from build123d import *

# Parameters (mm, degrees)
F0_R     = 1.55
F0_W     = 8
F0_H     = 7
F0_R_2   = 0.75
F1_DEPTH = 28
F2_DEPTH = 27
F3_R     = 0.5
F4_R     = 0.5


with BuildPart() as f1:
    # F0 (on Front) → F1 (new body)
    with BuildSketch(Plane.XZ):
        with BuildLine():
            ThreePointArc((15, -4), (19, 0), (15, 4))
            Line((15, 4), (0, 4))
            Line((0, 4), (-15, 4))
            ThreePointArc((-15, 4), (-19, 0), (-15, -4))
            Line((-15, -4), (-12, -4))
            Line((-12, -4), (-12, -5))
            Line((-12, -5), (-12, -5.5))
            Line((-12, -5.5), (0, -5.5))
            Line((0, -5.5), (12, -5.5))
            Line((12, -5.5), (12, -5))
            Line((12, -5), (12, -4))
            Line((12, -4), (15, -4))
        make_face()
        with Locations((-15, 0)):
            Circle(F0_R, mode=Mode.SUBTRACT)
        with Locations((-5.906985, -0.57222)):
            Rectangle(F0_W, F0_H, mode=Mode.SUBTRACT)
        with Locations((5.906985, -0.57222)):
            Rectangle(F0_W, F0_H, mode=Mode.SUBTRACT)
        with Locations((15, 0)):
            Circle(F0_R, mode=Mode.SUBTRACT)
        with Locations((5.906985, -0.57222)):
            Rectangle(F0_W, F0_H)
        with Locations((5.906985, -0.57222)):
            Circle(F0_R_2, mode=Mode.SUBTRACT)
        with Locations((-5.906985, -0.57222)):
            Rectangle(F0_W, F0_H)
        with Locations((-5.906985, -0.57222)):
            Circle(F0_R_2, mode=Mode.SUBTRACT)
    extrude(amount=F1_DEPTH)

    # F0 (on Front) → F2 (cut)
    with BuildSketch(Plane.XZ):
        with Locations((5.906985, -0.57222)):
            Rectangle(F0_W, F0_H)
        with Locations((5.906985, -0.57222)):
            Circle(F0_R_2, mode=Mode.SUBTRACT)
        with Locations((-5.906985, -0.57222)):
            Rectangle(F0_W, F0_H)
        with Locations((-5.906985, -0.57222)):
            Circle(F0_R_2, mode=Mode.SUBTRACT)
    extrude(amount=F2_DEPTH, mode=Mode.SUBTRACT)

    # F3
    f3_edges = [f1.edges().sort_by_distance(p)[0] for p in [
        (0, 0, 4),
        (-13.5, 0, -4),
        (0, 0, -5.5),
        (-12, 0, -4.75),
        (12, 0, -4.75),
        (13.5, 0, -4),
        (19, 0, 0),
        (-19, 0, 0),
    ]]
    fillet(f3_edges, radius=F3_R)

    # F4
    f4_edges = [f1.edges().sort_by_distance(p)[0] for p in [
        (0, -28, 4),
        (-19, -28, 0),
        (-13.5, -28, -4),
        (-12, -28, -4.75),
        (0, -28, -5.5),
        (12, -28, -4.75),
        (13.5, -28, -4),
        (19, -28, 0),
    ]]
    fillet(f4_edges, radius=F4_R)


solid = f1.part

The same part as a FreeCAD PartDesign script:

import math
import FreeCAD as App
import Part
import Sketcher
from FreeCAD import Vector
Q = App.Units.Quantity


def edges_at(feature, points):
    """Names of the edges that pass closest to the given points."""
    edges = feature.Shape.Edges
    near = lambda p: min(range(len(edges)), key=lambda i: edges[i].distToShape(Part.Vertex(*p))[0])
    return sorted({f"Edge{near(p) + 1}" for p in points})

doc = App.newDocument("Part")
body = doc.addObject("PartDesign::Body", "Body")

sketch1 = doc.addObject("Sketcher::SketchObject", "Sketch")
body.addObject(sketch1)
sketch1.AttachmentSupport = (doc.XZ_Plane, [""])
sketch1.MapMode = "FlatFace"
sketch1.addGeometry(Part.ArcOfCircle(Part.Circle(Vector(15, 0, 0), Vector(0, 0, 1), 4), math.radians(-90), math.radians(90)), False)
sketch1.addGeometry(Part.LineSegment(Vector(15, 4, 0), Vector(-15, 4, 0)), False)
sketch1.addGeometry(Part.ArcOfCircle(Part.Circle(Vector(-15, 0, 0), Vector(0, 0, 1), 4), math.radians(90), math.radians(270)), False)
sketch1.addGeometry(Part.LineSegment(Vector(-15, -4, 0), Vector(-12, -4, 0)), False)
sketch1.addGeometry(Part.LineSegment(Vector(-12, -4, 0), Vector(-12, -5.5, 0)), False)
sketch1.addGeometry(Part.LineSegment(Vector(-12, -5.5, 0), Vector(12, -5.5, 0)), False)
sketch1.addGeometry(Part.LineSegment(Vector(12, -5.5, 0), Vector(12, -4, 0)), False)
sketch1.addGeometry(Part.LineSegment(Vector(12, -4, 0), Vector(15, -4, 0)), False)
sketch1.addGeometry(Part.Circle(Vector(-15, 0, 0), Vector(0, 0, 1), 1.6), False)
sketch1.addGeometry(Part.Circle(Vector(-5.9, -0.6, 0), Vector(0, 0, 1), 0.8), False)
sketch1.addGeometry(Part.Circle(Vector(5.9, -0.6, 0), Vector(0, 0, 1), 0.8), False)
sketch1.addGeometry(Part.Circle(Vector(15, 0, 0), Vector(0, 0, 1), 1.6), False)
sketch1.addConstraint(Sketcher.Constraint("Tangent", 0, 2, 1, 1))
sketch1.addConstraint(Sketcher.Constraint("Tangent", 1, 2, 2, 1))
sketch1.addConstraint(Sketcher.Constraint("Tangent", 2, 2, 3, 1))
sketch1.addConstraint(Sketcher.Constraint("Coincident", 3, 2, 4, 1))
sketch1.addConstraint(Sketcher.Constraint("Coincident", 4, 2, 5, 1))
sketch1.addConstraint(Sketcher.Constraint("Coincident", 5, 2, 6, 1))
sketch1.addConstraint(Sketcher.Constraint("Coincident", 6, 2, 7, 1))
sketch1.addConstraint(Sketcher.Constraint("Tangent", 7, 2, 0, 1))
sketch1.addConstraint(Sketcher.Constraint("Horizontal", 1))
sketch1.addConstraint(Sketcher.Constraint("Horizontal", 3))
sketch1.addConstraint(Sketcher.Constraint("Vertical", 4))
sketch1.addConstraint(Sketcher.Constraint("Horizontal", 5))
sketch1.addConstraint(Sketcher.Constraint("Vertical", 6))
sketch1.addConstraint(Sketcher.Constraint("Horizontal", 7))
sketch1.addConstraint(Sketcher.Constraint("Coincident", 8, 3, 2, 3))
sketch1.addConstraint(Sketcher.Constraint("Coincident", 11, 3, 0, 3))
sketch1.addConstraint(Sketcher.Constraint("Equal", 0, 2))
sketch1.addConstraint(Sketcher.Constraint("Equal", 9, 10))
sketch1.addConstraint(Sketcher.Constraint("Equal", 8, 11))
sketch1.addConstraint(Sketcher.Constraint("Symmetric", 0, 3, 2, 3, -1, 1))
sketch1.addConstraint(Sketcher.Constraint("Symmetric", 9, 3, 10, 3, -2))
sketch1.addConstraint(Sketcher.Constraint("Equal", 3, 7))
sketch1.addConstraint(Sketcher.Constraint("Radius", 0, Q("4 mm")))
sketch1.addConstraint(Sketcher.Constraint("Diameter", 8, Q("3.1 mm")))
sketch1.addConstraint(Sketcher.Constraint("Diameter", 9, Q("1.5 mm")))
sketch1.addConstraint(Sketcher.Constraint("DistanceX", 1, 2, 1, 1, Q("30 mm")))
sketch1.addConstraint(Sketcher.Constraint("DistanceX", 3, 1, 3, 2, Q("3 mm")))
sketch1.addConstraint(Sketcher.Constraint("DistanceY", 4, 2, 4, 1, Q("1.5 mm")))
sketch1.addConstraint(Sketcher.Constraint("DistanceY", 9, 3, -1, 1, Q("0.57222 mm")))
sketch1.addConstraint(Sketcher.Constraint("DistanceX", 9, 3, 10, 3, Q("11.81397 mm")))
pad1 = doc.addObject("PartDesign::Pad", "Pad")
body.addObject(pad1)
pad1.Profile = sketch1
pad1.Length = 28

sketch2 = doc.addObject("Sketcher::SketchObject", "Sketch001")
body.addObject(sketch2)
sketch2.AttachmentSupport = (doc.XZ_Plane, [""])
sketch2.MapMode = "FlatFace"
sketch2.addGeometry(Part.LineSegment(Vector(1.9, 2.9, 0), Vector(1.9, -4.1, 0)), False)
sketch2.addGeometry(Part.LineSegment(Vector(1.9, -4.1, 0), Vector(9.9, -4.1, 0)), False)
sketch2.addGeometry(Part.LineSegment(Vector(9.9, -4.1, 0), Vector(9.9, 2.9, 0)), False)
sketch2.addGeometry(Part.LineSegment(Vector(9.9, 2.9, 0), Vector(1.9, 2.9, 0)), False)
sketch2.addGeometry(Part.Circle(Vector(5.9, -0.6, 0), Vector(0, 0, 1), 0.8), False)
sketch2.addGeometry(Part.LineSegment(Vector(-9.9, 2.9, 0), Vector(-9.9, -4.1, 0)), False)
sketch2.addGeometry(Part.LineSegment(Vector(-9.9, -4.1, 0), Vector(-1.9, -4.1, 0)), False)
sketch2.addGeometry(Part.LineSegment(Vector(-1.9, -4.1, 0), Vector(-1.9, 2.9, 0)), False)
sketch2.addGeometry(Part.LineSegment(Vector(-1.9, 2.9, 0), Vector(-9.9, 2.9, 0)), False)
sketch2.addGeometry(Part.Circle(Vector(-5.9, -0.6, 0), Vector(0, 0, 1), 0.8), False)
sketch2.addConstraint(Sketcher.Constraint("Coincident", 0, 2, 1, 1))
sketch2.addConstraint(Sketcher.Constraint("Coincident", 1, 2, 2, 1))
sketch2.addConstraint(Sketcher.Constraint("Coincident", 2, 2, 3, 1))
sketch2.addConstraint(Sketcher.Constraint("Coincident", 3, 2, 0, 1))
sketch2.addConstraint(Sketcher.Constraint("Coincident", 5, 2, 6, 1))
sketch2.addConstraint(Sketcher.Constraint("Coincident", 6, 2, 7, 1))
sketch2.addConstraint(Sketcher.Constraint("Coincident", 7, 2, 8, 1))
sketch2.addConstraint(Sketcher.Constraint("Coincident", 8, 2, 5, 1))
sketch2.addConstraint(Sketcher.Constraint("Vertical", 0))
sketch2.addConstraint(Sketcher.Constraint("Horizontal", 1))
sketch2.addConstraint(Sketcher.Constraint("Vertical", 2))
sketch2.addConstraint(Sketcher.Constraint("Horizontal", 3))
sketch2.addConstraint(Sketcher.Constraint("Vertical", 5))
sketch2.addConstraint(Sketcher.Constraint("Horizontal", 6))
sketch2.addConstraint(Sketcher.Constraint("Vertical", 7))
sketch2.addConstraint(Sketcher.Constraint("Horizontal", 8))
sketch2.addConstraint(Sketcher.Constraint("Equal", 4, 9))
sketch2.addConstraint(Sketcher.Constraint("Symmetric", 4, 3, 9, 3, -2))
sketch2.addConstraint(Sketcher.Constraint("Symmetric", 1, 2, 5, 2, -2))
sketch2.addConstraint(Sketcher.Constraint("Symmetric", 3, 2, 7, 2, -2))
sketch2.addConstraint(Sketcher.Constraint("Diameter", 4, Q("1.5 mm")))
sketch2.addConstraint(Sketcher.Constraint("DistanceX", 1, 1, 1, 2, Q("8 mm")))
sketch2.addConstraint(Sketcher.Constraint("DistanceY", 0, 2, 0, 1, Q("7 mm")))
sketch2.addConstraint(Sketcher.Constraint("DistanceX", 0, 2, 4, 3, Q("4 mm")))
sketch2.addConstraint(Sketcher.Constraint("DistanceY", 0, 2, 4, 3, Q("3.5 mm")))
sketch2.addConstraint(Sketcher.Constraint("DistanceY", 4, 3, -1, 1, Q("0.57222 mm")))
sketch2.addConstraint(Sketcher.Constraint("DistanceX", 9, 3, 4, 3, Q("11.81397 mm")))
pocket1 = doc.addObject("PartDesign::Pocket", "Pocket")
body.addObject(pocket1)
pocket1.Profile = sketch2
pocket1.Length = 27
pocket1.Reversed = True
doc.recompute()

fillet = doc.addObject("PartDesign::Fillet", "Fillet")
body.addObject(fillet)
fillet.Base = (pocket1, edges_at(pocket1, [
    (0, 0, 4),
    (-13.5, 0, -4),
    (0, 0, -5.5),
    (-12, 0, -4.75),
    (12, 0, -4.75),
    (13.5, 0, -4),
    (19, 0, 0),
    (-19, 0, 0),
]))
fillet.Radius = 0.5
doc.recompute()

fillet2 = doc.addObject("PartDesign::Fillet", "Fillet001")
body.addObject(fillet2)
fillet2.Base = (fillet, edges_at(fillet, [
    (0, -28, 4),
    (-19, -28, 0),
    (-13.5, -28, -4),
    (-12, -28, -4.75),
    (0, -28, -5.5),
    (12, -28, -4.75),
    (13.5, -28, -4),
    (19, -28, 0),
]))
fillet2.Radius = 0.5

doc.recompute()
